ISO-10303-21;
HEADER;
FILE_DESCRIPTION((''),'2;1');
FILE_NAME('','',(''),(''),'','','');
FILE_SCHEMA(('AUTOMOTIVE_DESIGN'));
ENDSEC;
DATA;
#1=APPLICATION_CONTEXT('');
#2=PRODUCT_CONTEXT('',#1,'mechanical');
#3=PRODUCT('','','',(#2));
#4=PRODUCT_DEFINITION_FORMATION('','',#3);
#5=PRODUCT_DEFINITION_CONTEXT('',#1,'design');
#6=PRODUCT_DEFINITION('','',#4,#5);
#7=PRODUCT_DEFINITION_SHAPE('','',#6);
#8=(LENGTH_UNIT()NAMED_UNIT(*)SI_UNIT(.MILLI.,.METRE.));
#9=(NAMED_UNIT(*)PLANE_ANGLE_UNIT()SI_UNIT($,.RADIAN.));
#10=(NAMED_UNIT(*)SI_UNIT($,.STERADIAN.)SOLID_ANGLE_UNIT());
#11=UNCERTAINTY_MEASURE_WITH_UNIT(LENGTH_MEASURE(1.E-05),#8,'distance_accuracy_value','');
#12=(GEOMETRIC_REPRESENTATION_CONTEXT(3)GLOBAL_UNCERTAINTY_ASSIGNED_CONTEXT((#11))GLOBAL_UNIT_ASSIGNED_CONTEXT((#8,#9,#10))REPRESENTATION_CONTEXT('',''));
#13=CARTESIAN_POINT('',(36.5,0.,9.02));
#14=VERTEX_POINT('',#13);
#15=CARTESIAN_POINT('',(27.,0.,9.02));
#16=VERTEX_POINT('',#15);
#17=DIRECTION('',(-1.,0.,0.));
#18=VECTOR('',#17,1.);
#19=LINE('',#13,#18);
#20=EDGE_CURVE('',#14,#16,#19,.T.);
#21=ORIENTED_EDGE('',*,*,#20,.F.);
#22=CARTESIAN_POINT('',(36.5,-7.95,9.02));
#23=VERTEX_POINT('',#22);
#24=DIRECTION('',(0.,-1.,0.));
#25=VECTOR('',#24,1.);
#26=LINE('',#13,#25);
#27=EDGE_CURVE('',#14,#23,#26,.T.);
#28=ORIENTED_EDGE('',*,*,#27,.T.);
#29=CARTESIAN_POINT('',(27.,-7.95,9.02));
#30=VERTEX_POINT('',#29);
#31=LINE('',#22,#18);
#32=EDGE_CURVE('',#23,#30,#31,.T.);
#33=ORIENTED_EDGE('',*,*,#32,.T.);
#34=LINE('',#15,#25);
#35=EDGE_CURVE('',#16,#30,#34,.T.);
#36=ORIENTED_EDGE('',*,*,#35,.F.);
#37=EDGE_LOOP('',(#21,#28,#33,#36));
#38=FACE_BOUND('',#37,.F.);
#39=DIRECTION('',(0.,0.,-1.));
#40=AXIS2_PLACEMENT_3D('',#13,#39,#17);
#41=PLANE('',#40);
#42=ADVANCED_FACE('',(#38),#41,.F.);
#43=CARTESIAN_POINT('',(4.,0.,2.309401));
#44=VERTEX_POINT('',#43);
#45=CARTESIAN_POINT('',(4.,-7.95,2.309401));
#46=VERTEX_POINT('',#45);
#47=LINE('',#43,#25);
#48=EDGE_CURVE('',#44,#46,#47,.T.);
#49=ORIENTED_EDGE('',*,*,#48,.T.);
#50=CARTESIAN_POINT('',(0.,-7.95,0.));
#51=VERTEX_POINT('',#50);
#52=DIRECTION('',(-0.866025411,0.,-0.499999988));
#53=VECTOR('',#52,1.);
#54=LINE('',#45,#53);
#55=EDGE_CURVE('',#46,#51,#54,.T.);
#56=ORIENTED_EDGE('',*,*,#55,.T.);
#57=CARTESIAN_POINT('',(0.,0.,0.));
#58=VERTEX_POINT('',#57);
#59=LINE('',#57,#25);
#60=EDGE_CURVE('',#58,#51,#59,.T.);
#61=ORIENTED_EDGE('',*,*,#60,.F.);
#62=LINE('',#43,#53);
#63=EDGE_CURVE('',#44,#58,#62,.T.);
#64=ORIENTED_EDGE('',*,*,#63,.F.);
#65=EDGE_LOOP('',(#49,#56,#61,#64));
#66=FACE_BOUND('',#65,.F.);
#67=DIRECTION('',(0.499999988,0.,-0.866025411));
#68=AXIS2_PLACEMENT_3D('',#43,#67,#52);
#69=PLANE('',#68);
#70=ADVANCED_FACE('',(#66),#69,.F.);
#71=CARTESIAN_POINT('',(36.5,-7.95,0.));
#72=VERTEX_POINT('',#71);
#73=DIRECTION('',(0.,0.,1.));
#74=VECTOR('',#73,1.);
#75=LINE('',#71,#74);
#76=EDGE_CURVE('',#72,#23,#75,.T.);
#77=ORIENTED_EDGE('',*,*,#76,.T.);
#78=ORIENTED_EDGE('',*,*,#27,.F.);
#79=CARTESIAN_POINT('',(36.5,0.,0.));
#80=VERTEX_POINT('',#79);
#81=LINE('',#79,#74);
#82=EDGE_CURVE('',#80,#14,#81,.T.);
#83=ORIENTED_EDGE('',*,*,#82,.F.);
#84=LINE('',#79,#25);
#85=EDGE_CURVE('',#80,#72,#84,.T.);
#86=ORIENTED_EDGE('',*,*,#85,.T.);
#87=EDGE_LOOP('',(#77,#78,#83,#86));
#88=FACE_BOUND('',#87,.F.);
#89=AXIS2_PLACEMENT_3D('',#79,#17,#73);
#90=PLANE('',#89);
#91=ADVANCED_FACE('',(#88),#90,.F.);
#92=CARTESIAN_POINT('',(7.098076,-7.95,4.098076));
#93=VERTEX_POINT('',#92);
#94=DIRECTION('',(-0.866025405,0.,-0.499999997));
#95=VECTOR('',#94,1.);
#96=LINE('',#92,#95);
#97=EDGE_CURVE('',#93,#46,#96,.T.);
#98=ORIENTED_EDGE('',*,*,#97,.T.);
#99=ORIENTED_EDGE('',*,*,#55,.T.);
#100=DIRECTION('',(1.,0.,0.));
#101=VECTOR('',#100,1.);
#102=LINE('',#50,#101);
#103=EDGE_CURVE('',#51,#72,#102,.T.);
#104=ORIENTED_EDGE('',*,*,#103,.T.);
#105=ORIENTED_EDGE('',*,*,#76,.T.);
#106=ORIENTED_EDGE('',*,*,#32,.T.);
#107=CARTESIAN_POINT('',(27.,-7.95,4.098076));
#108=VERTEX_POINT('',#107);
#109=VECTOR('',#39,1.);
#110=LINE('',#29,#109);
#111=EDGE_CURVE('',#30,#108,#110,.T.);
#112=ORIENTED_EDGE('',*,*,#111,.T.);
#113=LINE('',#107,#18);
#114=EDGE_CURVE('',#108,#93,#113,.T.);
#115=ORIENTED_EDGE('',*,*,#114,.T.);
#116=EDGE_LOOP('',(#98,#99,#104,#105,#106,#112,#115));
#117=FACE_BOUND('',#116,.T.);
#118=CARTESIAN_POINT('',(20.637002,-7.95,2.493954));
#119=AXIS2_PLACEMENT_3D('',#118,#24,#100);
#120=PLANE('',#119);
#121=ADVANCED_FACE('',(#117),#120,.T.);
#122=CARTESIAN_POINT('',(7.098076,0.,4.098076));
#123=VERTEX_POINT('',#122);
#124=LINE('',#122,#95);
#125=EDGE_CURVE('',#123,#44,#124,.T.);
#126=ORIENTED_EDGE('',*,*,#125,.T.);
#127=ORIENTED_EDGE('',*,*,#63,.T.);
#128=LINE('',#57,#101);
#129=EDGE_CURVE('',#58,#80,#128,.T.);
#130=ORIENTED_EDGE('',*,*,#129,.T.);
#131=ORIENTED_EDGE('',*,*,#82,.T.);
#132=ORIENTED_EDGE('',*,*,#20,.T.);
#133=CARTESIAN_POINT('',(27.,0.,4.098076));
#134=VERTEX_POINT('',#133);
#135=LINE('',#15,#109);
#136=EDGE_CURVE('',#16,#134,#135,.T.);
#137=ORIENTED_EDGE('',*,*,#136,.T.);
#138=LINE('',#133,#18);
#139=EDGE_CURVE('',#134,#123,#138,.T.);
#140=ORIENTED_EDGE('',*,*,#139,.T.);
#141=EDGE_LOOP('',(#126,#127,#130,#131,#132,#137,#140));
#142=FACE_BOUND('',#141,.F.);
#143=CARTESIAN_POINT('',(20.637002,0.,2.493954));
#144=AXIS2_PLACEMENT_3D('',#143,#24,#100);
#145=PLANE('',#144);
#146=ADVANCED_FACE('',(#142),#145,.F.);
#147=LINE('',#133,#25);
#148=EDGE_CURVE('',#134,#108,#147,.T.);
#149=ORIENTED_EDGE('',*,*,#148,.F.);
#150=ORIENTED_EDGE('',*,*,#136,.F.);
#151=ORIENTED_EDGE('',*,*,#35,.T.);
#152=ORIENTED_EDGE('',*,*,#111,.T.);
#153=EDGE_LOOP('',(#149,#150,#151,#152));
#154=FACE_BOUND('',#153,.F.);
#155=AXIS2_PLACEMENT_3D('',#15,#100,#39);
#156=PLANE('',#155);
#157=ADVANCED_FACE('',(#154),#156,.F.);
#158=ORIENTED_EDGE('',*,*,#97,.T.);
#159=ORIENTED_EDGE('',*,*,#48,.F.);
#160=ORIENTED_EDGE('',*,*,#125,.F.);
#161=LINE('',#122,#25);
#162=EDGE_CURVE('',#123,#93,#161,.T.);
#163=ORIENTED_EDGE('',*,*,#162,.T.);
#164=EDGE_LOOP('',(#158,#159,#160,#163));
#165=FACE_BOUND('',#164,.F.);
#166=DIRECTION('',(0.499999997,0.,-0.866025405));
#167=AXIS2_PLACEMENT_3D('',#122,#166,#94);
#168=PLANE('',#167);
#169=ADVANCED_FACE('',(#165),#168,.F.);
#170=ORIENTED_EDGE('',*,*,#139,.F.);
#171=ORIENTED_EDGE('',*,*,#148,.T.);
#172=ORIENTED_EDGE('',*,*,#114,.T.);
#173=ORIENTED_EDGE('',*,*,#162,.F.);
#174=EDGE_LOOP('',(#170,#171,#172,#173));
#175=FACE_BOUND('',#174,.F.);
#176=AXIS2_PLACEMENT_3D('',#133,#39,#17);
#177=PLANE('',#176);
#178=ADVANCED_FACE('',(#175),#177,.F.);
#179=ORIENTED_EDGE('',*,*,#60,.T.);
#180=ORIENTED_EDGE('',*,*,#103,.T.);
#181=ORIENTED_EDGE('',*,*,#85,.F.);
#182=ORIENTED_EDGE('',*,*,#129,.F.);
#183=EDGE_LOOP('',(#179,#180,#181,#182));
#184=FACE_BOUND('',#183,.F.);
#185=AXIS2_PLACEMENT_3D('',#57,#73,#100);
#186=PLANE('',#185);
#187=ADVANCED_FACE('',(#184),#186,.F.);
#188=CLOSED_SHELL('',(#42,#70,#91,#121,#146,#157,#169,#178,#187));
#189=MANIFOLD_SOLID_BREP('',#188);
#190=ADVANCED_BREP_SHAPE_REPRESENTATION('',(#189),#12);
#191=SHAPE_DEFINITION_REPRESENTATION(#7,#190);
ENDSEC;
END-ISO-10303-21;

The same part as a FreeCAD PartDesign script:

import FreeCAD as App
import Part
import Sketcher

V = App.Vector
Q = App.Units.Quantity


def add_polygon(sketch, points):
    """Adds a closed chain of lines whose ends are joined by coincident constraints."""
    first, n = sketch.GeometryCount, len(points)
    for a, b in zip(points, points[1:] + points[:1]):
        sketch.addGeometry(Part.LineSegment(App.Vector(*a, 0), App.Vector(*b, 0)), False)
    for i in range(n):
        sketch.addConstraint(Sketcher.Constraint("Coincident", first + i, 2, first + (i + 1) % n, 1))

doc = App.newDocument("Part")
body = doc.addObject("PartDesign::Body", "Body")

# Sketch on XZ plane
sketch1 = doc.addObject("Sketcher::SketchObject", "Sketch")
body.addObject(sketch1)
sketch1.AttachmentSupport = (doc.XZ_Plane, [""])
sketch1.MapMode = "FlatFace"
add_polygon(sketch1, [(4, 2.309401), (0, 0), (36.5, 0), (36.5, 9.02), (27, 9.02), (27, 4.098076), (7.098076, 4.098076)])  # lines 0-6
sketch1.addConstraint(Sketcher.Constraint("Horizontal", 1))
sketch1.addConstraint(Sketcher.Constraint("Vertical", 2))
sketch1.addConstraint(Sketcher.Constraint("Horizontal", 3))
sketch1.addConstraint(Sketcher.Constraint("Vertical", 4))
sketch1.addConstraint(Sketcher.Constraint("Horizontal", 5))
sketch1.addConstraint(Sketcher.Constraint("Coincident", 0, 2, -1, 1))
sketch1.addConstraint(Sketcher.Constraint("Parallel", 0, 6))
sketch1.addConstraint(Sketcher.Constraint("Angle", 0, Q("-150.000001 deg")))
sketch1.addConstraint(Sketcher.Constraint("DistanceX", 1, 1, 1, 2, 36.5))
sketch1.addConstraint(Sketcher.Constraint("DistanceX", 3, 2, 3, 1, 9.5))
sketch1.addConstraint(Sketcher.Constraint("DistanceX", -1, 1, 6, 2, 4.0))
sketch1.addConstraint(Sketcher.Constraint("DistanceY", 2, 1, 2, 2, 9.02))
sketch1.addConstraint(Sketcher.Constraint("Distance", 6, 3.57735))
pad1 = doc.addObject("PartDesign::Pad", "Pad")
body.addObject(pad1)
pad1.Profile = sketch1
pad1.Length = 7.95

doc.recompute()
